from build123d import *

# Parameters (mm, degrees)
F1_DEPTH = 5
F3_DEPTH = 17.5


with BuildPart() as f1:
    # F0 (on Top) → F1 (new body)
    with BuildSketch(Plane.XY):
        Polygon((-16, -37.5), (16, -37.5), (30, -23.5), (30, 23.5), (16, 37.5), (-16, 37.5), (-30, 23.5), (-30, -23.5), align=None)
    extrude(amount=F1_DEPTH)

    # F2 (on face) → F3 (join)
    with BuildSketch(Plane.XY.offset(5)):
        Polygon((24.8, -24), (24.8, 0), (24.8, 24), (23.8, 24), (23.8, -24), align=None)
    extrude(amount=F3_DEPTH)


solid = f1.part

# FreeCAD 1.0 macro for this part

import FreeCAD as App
import Part
import Sketcher

V = App.Vector

doc = App.newDocument("Part")
body = doc.addObject("PartDesign::Body", "Body")

# Sketch on XY plane
sketch1 = body.newObject("Sketcher::SketchObject", "Sketch")
sketch1.AttachmentSupport = (doc.getObject("XY_Plane"), [""])
sketch1.MapMode = "FlatFace"
sketch1.addGeometry([
    Part.LineSegment(V(-16, -38, 0), V(16, -38, 0)),  # 0
    Part.LineSegment(V(16, -38, 0), V(30, -24, 0)),  # 1
    Part.LineSegment(V(30, -24, 0), V(30, 24, 0)),  # 2
    Part.LineSegment(V(30, 24, 0), V(16, 38, 0)),  # 3
    Part.LineSegment(V(16, 38, 0), V(-16, 38, 0)),  # 4
    Part.LineSegment(V(-16, 38, 0), V(-30, 24, 0)),  # 5
    Part.LineSegment(V(-30, 24, 0), V(-30, -24, 0)),  # 6
    Part.LineSegment(V(-30, -24, 0), V(-16, -38, 0)),  # 7
], False)
sketch1.addConstraint([
    Sketcher.Constraint("Coincident", 0, 2, 1, 1),
    Sketcher.Constraint("Coincident", 1, 2, 2, 1),
    Sketcher.Constraint("Coincident", 2, 2, 3, 1),
    Sketcher.Constraint("Coincident", 3, 2, 4, 1),
    Sketcher.Constraint("Coincident", 4, 2, 5, 1),
    Sketcher.Constraint("Coincident", 5, 2, 6, 1),
    Sketcher.Constraint("Coincident", 6, 2, 7, 1),
    Sketcher.Constraint("Coincident", 7, 2, 0, 1),
    Sketcher.Constraint("Horizontal", 0),
    Sketcher.Constraint("Vertical", 2),
    Sketcher.Constraint("Horizontal", 4),
    Sketcher.Constraint("Vertical", 6),
    Sketcher.Constraint("Symmetric", 0, 2, 4, 2, -1, 1),
    Sketcher.Constraint("Symmetric", 1, 2, 5, 2, -1, 1),
    Sketcher.Constraint("Perpendicular", 1, 3),
    Sketcher.Constraint("Perpendicular", 5, 7),
    Sketcher.Constraint("Horizontal", 2, 2, 5, 2),
    Sketcher.Constraint("Horizontal", 1, 2, 6, 2),
    Sketcher.Constraint("Vertical", 0, 2, 3, 2),
    Sketcher.Constraint("DistanceX", 0, 1, 0, 2, 32.0),
    Sketcher.Constraint("DistanceY", 2, 1, 2, 2, 47.0),
    Sketcher.Constraint("DistanceX", -1, 1, 1, 2, 30.0),
])
pad1 = body.newObject("PartDesign::Pad", "Pad")
pad1.Profile = sketch1
pad1.Length = 5

# Sketch on XY plane
sketch2 = body.newObject("Sketcher::SketchObject", "Sketch001")
sketch2.AttachmentSupport = (doc.getObject("XY_Plane"), [""])
sketch2.MapMode = "FlatFace"
sketch2.AttachmentOffset = App.Placement(V(0, 0, 5), App.Rotation())
sketch2.addGeometry([
    Part.LineSegment(V(24.8, -24, 0), V(24.8, 24, 0)),
    Part.LineSegment(V(24.8, 24, 0), V(23.8, 24, 0)),
    Part.LineSegment(V(23.8, 24, 0), V(23.8, -24, 0)),
    Part.LineSegment(V(23.8, -24, 0), V(24.8, -24, 0)),
], False)
sketch2.addConstraint([
    Sketcher.Constraint("Coincident", 0, 2, 1, 1),
    Sketcher.Constraint("Coincident", 1, 2, 2, 1),
    Sketcher.Constraint("Coincident", 2, 2, 3, 1),
    Sketcher.Constraint("Coincident", 3, 2, 0, 1),
    Sketcher.Constraint("Vertical", 0),
    Sketcher.Constraint("Horizontal", 1),
    Sketcher.Constraint("Vertical", 2),
    Sketcher.Constraint("Horizontal", 3),
    Sketcher.Constraint("DistanceX", 1, 2, 1, 1, 1.0),
    Sketcher.Constraint("DistanceY", 0, 1, 0, 2, 48.0),
    Sketcher.Constraint("DistanceY", -1, 1, 0, 2, 24.0),
    Sketcher.Constraint("DistanceX", -1, 1, 0, 2, 24.8),
])
pad2 = body.newObject("PartDesign::Pad", "Pad001")
pad2.Profile = sketch2
pad2.Length = 17.5

doc.recompute()
